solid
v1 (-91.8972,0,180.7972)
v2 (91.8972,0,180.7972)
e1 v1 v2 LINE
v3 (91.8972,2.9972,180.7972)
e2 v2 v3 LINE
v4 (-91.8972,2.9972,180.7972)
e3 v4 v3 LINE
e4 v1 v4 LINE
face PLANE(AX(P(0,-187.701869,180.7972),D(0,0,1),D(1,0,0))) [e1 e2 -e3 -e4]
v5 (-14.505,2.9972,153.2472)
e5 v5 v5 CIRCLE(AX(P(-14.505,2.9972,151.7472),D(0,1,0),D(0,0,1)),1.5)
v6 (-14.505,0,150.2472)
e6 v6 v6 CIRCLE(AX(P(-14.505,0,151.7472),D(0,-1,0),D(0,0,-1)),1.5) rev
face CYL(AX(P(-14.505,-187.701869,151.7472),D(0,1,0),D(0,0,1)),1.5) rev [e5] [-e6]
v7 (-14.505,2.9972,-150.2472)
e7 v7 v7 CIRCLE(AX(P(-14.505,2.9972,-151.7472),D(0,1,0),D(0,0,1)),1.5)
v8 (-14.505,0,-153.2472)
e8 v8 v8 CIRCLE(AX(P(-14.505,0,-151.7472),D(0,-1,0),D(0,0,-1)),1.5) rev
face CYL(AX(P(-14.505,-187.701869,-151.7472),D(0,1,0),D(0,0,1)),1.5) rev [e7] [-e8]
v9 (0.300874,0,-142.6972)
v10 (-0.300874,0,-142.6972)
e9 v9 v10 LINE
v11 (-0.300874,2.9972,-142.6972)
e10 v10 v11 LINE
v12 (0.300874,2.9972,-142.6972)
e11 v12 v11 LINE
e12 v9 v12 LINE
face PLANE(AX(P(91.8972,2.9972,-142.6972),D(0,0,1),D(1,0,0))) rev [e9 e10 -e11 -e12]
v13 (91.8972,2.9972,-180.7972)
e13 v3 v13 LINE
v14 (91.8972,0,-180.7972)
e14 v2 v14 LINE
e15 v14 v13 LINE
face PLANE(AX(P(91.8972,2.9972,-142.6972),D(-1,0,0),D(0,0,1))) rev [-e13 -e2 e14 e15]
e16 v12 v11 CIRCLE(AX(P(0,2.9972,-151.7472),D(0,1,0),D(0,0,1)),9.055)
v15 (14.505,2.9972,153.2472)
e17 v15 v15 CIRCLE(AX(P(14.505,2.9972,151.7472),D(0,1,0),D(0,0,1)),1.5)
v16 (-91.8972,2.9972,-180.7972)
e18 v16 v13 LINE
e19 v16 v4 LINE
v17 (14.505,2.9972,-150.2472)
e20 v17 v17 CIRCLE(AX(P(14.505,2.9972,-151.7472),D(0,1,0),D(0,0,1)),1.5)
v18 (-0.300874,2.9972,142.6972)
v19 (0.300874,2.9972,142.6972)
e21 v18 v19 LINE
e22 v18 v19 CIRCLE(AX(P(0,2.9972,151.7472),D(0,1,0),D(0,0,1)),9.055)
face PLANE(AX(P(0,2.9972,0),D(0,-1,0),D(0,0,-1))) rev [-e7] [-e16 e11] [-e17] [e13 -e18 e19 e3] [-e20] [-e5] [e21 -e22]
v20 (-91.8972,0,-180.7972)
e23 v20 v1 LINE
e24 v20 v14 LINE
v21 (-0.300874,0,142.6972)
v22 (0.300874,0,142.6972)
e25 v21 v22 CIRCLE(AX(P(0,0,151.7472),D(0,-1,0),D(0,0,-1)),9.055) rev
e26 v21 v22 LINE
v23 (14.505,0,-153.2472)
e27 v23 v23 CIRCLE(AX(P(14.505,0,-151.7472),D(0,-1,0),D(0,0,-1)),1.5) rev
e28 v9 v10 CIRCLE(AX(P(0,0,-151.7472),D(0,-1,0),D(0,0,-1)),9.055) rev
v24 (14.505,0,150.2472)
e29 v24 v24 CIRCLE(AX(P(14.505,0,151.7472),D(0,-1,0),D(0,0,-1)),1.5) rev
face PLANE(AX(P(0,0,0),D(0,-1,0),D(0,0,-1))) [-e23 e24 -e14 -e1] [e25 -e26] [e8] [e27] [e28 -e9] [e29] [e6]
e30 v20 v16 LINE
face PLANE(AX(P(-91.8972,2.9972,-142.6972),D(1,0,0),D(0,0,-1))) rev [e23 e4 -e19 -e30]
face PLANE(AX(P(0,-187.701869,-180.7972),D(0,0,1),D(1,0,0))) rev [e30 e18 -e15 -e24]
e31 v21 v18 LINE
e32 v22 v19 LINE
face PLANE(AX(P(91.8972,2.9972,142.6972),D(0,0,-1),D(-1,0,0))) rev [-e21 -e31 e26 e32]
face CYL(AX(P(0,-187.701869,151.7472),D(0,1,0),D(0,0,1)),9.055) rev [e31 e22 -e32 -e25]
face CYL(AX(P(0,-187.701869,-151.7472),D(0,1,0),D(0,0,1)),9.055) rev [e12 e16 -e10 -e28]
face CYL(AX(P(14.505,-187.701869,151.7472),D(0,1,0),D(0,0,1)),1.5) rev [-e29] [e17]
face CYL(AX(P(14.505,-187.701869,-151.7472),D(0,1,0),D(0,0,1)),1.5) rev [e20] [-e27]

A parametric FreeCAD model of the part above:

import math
import FreeCAD as App
import Part
import Sketcher

V = App.Vector
Q = App.Units.Quantity


def add_polygon(sketch, points):
    """Adds a closed chain of lines whose ends are joined by coincident constraints."""
    first, n = sketch.GeometryCount, len(points)
    for a, b in zip(points, points[1:] + points[:1]):
        sketch.addGeometry(Part.LineSegment(App.Vector(*a, 0), App.Vector(*b, 0)), False)
    for i in range(n):
        sketch.addConstraint(Sketcher.Constraint("Coincident", first + i, 2, first + (i + 1) % n, 1))

doc = App.newDocument("Part")
body = doc.addObject("PartDesign::Body", "Body")

# Sketch on XZ plane
sketch1 = body.newObject("Sketcher::SketchObject", "Sketch")
sketch1.AttachmentSupport = (doc.getObject("XZ_Plane"), [""])
sketch1.MapMode = "FlatFace"
add_polygon(sketch1, [(-92, -143), (-92, 143), (92, 143), (92, -143)])  # lines 0-3
sketch1.addConstraint([
    Sketcher.Constraint("Vertical", 0),
    Sketcher.Constraint("Horizontal", 1),
    Sketcher.Constraint("Vertical", 2),
    Sketcher.Constraint("Horizontal", 3),
    Sketcher.Constraint("Symmetric", 0, 2, 2, 2, -1, 1),
    Sketcher.Constraint("DistanceX", 1, 1, 1, 2, Q("7.236 in")),
    Sketcher.Constraint("DistanceY", 0, 1, 0, 2, Q("11.236 in")),
])
pad1 = body.newObject("PartDesign::Pad", "Pad")
pad1.Profile = sketch1
pad1.Length = Q("0.118 in")
pad1.Reversed = True

# Sketch on XZ plane
sketch2 = body.newObject("Sketcher::SketchObject", "Sketch001")
sketch2.AttachmentSupport = (doc.getObject("XZ_Plane"), [""])
sketch2.MapMode = "FlatFace"
sketch2.AttachmentOffset = App.Placement(V(0, 0, -0.118 * 25.4), App.Rotation())
sketch2.addGeometry([
    Part.LineSegment(V(-0.3, 142.7, 0), V(-91.9, 142.7, 0)),  # 0
    Part.LineSegment(V(-91.9, 142.7, 0), V(-91.9, 180.8, 0)),  # 1
    Part.LineSegment(V(-91.9, 180.8, 0), V(91.9, 180.8, 0)),  # 2
    Part.LineSegment(V(91.9, 180.8, 0), V(91.9, 142.7, 0)),  # 3
    Part.LineSegment(V(91.9, 142.7, 0), V(0.3, 142.7, 0)),  # 4
    Part.ArcOfCircle(Part.Circle(V(0, 151.7, 0), V(0, 0, 1), 9.1), math.radians(-88), math.radians(268)),  # 5
    Part.Circle(V(-14.5, 151.7, 0), V(0, 0, 1), 1.5),  # 6
    Part.Circle(V(14.5, 151.7, 0), V(0, 0, 1), 1.5),  # 7
    Part.LineSegment(V(0.3, -142.7, 0), V(91.9, -142.7, 0)),  # 8
    Part.LineSegment(V(91.9, -142.7, 0), V(91.9, -180.8, 0)),  # 9
    Part.LineSegment(V(91.9, -180.8, 0), V(-91.9, -180.8, 0)),  # 10
    Part.LineSegment(V(-91.9, -180.8, 0), V(-91.9, -142.7, 0)),  # 11
    Part.LineSegment(V(-91.9, -142.7, 0), V(-0.3, -142.7, 0)),  # 12
    Part.ArcOfCircle(Part.Circle(V(0, -151.7, 0), V(0, 0, 1), 9.1), math.radians(92), math.radians(448)),  # 13
    Part.Circle(V(-14.5, -151.7, 0), V(0, 0, 1), 1.5),  # 14
    Part.Circle(V(14.5, -151.7, 0), V(0, 0, 1), 1.5),  # 15
], False)
sketch2.addConstraint([
    Sketcher.Constraint("Coincident", 0, 2, 1, 1),
    Sketcher.Constraint("Coincident", 1, 2, 2, 1),
    Sketcher.Constraint("Coincident", 2, 2, 3, 1),
    Sketcher.Constraint("Coincident", 3, 2, 4, 1),
    Sketcher.Constraint("Coincident", 4, 2, 5, 1),
    Sketcher.Constraint("Coincident", 5, 2, 0, 1),
    Sketcher.Constraint("Coincident", 8, 2, 9, 1),
    Sketcher.Constraint("Coincident", 9, 2, 10, 1),
    Sketcher.Constraint("Coincident", 10, 2, 11, 1),
    Sketcher.Constraint("Coincident", 11, 2, 12, 1),
    Sketcher.Constraint("Coincident", 12, 2, 13, 1),
    Sketcher.Constraint("Coincident", 13, 2, 8, 1),
    Sketcher.Constraint("Horizontal", 0),
    Sketcher.Constraint("Vertical", 1),
    Sketcher.Constraint("Horizontal", 2),
    Sketcher.Constraint("Vertical", 3),
    Sketcher.Constraint("Horizontal", 4),
    Sketcher.Constraint("Horizontal", 8),
    Sketcher.Constraint("Vertical", 9),
    Sketcher.Constraint("Horizontal", 10),
    Sketcher.Constraint("Vertical", 11),
    Sketcher.Constraint("Horizontal", 12),
    Sketcher.Constraint("Equal", 6, 7),
    Sketcher.Constraint("Equal", 5, 13),
    Sketcher.Constraint("Equal", 7, 14),
    Sketcher.Constraint("Equal", 14, 15),
    Sketcher.Constraint("Symmetric", 5, 3, 13, 3, -1, 1),
    Sketcher.Constraint("Symmetric", 7, 3, 14, 3, -1, 1),
    Sketcher.Constraint("Symmetric", 6, 3, 15, 3, -1, 1),
    Sketcher.Constraint("Symmetric", 0, 2, 8, 2, -1, 1),
    Sketcher.Constraint("Symmetric", 2, 2, 10, 2, -1, 1),
    Sketcher.Constraint("Symmetric", 6, 3, 7, 3, -2),
    Sketcher.Constraint("Symmetric", 0, 2, 3, 2, -2),
    Sketcher.Constraint("Symmetric", 12, 2, 13, 2, -2),
    Sketcher.Constraint("Horizontal", 5, 3, 6, 3),
    Sketcher.Constraint("DistanceY", 1, 1, 1, 2, Q("1.5 in")),
    Sketcher.Constraint("Diameter", 6, 3.0),
    Sketcher.Constraint("DistanceX", 2, 1, 2, 2, Q("7.236 in")),
    Sketcher.Constraint("Radius", 5, 9.055),
    Sketcher.Constraint("DistanceY", -1, 1, 0, 2, Q("5.618 in")),
    Sketcher.Constraint("DistanceY", -1, 1, 5, 3, 151.7472),
    Sketcher.Constraint("DistanceX", 6, 3, -1, 1, 14.505),
])
pad2 = body.newObject("PartDesign::Pad", "Pad001")
pad2.Profile = sketch2
pad2.Length = Q("0.118 in")

doc.recompute()
